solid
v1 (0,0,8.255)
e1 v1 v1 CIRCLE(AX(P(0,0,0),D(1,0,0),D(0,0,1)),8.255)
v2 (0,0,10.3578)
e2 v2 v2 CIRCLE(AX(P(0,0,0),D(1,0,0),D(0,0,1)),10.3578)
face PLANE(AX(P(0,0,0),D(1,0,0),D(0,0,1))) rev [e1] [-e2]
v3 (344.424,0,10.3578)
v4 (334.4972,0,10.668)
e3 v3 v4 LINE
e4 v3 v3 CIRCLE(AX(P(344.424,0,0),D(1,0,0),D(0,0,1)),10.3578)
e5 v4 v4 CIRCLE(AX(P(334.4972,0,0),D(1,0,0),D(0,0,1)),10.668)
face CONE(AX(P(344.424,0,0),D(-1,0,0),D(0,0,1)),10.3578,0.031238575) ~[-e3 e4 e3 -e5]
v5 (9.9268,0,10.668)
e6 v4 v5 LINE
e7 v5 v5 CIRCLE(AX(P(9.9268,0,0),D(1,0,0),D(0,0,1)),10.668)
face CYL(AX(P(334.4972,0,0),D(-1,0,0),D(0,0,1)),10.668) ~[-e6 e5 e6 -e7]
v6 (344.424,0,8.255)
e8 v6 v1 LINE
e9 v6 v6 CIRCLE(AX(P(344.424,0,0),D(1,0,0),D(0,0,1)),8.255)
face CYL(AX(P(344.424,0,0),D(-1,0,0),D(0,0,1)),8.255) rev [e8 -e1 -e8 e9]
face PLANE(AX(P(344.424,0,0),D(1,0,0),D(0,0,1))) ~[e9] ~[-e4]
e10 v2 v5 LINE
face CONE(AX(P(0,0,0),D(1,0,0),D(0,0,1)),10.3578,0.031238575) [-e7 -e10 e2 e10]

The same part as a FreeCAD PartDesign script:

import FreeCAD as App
import Part
import Sketcher
Q = App.Units.Quantity


def add_polygon(sketch, points):
    """Adds a closed chain of lines whose ends are joined by coincident constraints."""
    first, n = sketch.GeometryCount, len(points)
    for a, b in zip(points, points[1:] + points[:1]):
        sketch.addGeometry(Part.LineSegment(App.Vector(*a, 0), App.Vector(*b, 0)), False)
    for i in range(n):
        sketch.addConstraint(Sketcher.Constraint("Coincident", first + i, 2, first + (i + 1) % n, 1))

doc = App.newDocument("Part")
body = doc.addObject("PartDesign::Body", "Body")

# Sketch on XZ plane
sketch1 = body.newObject("Sketcher::SketchObject", "Sketch")
sketch1.AttachmentSupport = (doc.getObject("XZ_Plane"), [""])
sketch1.MapMode = "FlatFace"
add_polygon(sketch1, [(344.4, 10.4), (344.4, 8.3), (0, 8.3), (0, 10.4), (9.9, 10.7), (334.5, 10.7)])  # lines 0-5
sketch1.addConstraint([
    Sketcher.Constraint("Vertical", 0),
    Sketcher.Constraint("Horizontal", 1),
    Sketcher.Constraint("Vertical", 2),
    Sketcher.Constraint("Horizontal", 4),
    Sketcher.Constraint("PointOnObject", 1, 2, -2),
    Sketcher.Constraint("Horizontal", 2, 2, 5, 2),
    Sketcher.Constraint("Equal", 3, 5),
    Sketcher.Constraint("DistanceX", 1, 2, 1, 1, Q("13.56 in")),
    Sketcher.Constraint("Angle", 3, Q("1.7898 deg")),
    Sketcher.Constraint("DistanceY", -1, 1, 3, 2, Q("0.42 in")),
    Sketcher.Constraint("Distance", 3, Q("0.391 in")),
    Sketcher.Constraint("DistanceY", -1, 1, 0, 2, Q("0.325 in")),
])
revolution = body.newObject("PartDesign::Revolution", "Revolution")
revolution.Profile = sketch1
revolution.ReferenceAxis = (sketch1, ["H_Axis"])
revolution.Angle = 360

doc.recompute()
